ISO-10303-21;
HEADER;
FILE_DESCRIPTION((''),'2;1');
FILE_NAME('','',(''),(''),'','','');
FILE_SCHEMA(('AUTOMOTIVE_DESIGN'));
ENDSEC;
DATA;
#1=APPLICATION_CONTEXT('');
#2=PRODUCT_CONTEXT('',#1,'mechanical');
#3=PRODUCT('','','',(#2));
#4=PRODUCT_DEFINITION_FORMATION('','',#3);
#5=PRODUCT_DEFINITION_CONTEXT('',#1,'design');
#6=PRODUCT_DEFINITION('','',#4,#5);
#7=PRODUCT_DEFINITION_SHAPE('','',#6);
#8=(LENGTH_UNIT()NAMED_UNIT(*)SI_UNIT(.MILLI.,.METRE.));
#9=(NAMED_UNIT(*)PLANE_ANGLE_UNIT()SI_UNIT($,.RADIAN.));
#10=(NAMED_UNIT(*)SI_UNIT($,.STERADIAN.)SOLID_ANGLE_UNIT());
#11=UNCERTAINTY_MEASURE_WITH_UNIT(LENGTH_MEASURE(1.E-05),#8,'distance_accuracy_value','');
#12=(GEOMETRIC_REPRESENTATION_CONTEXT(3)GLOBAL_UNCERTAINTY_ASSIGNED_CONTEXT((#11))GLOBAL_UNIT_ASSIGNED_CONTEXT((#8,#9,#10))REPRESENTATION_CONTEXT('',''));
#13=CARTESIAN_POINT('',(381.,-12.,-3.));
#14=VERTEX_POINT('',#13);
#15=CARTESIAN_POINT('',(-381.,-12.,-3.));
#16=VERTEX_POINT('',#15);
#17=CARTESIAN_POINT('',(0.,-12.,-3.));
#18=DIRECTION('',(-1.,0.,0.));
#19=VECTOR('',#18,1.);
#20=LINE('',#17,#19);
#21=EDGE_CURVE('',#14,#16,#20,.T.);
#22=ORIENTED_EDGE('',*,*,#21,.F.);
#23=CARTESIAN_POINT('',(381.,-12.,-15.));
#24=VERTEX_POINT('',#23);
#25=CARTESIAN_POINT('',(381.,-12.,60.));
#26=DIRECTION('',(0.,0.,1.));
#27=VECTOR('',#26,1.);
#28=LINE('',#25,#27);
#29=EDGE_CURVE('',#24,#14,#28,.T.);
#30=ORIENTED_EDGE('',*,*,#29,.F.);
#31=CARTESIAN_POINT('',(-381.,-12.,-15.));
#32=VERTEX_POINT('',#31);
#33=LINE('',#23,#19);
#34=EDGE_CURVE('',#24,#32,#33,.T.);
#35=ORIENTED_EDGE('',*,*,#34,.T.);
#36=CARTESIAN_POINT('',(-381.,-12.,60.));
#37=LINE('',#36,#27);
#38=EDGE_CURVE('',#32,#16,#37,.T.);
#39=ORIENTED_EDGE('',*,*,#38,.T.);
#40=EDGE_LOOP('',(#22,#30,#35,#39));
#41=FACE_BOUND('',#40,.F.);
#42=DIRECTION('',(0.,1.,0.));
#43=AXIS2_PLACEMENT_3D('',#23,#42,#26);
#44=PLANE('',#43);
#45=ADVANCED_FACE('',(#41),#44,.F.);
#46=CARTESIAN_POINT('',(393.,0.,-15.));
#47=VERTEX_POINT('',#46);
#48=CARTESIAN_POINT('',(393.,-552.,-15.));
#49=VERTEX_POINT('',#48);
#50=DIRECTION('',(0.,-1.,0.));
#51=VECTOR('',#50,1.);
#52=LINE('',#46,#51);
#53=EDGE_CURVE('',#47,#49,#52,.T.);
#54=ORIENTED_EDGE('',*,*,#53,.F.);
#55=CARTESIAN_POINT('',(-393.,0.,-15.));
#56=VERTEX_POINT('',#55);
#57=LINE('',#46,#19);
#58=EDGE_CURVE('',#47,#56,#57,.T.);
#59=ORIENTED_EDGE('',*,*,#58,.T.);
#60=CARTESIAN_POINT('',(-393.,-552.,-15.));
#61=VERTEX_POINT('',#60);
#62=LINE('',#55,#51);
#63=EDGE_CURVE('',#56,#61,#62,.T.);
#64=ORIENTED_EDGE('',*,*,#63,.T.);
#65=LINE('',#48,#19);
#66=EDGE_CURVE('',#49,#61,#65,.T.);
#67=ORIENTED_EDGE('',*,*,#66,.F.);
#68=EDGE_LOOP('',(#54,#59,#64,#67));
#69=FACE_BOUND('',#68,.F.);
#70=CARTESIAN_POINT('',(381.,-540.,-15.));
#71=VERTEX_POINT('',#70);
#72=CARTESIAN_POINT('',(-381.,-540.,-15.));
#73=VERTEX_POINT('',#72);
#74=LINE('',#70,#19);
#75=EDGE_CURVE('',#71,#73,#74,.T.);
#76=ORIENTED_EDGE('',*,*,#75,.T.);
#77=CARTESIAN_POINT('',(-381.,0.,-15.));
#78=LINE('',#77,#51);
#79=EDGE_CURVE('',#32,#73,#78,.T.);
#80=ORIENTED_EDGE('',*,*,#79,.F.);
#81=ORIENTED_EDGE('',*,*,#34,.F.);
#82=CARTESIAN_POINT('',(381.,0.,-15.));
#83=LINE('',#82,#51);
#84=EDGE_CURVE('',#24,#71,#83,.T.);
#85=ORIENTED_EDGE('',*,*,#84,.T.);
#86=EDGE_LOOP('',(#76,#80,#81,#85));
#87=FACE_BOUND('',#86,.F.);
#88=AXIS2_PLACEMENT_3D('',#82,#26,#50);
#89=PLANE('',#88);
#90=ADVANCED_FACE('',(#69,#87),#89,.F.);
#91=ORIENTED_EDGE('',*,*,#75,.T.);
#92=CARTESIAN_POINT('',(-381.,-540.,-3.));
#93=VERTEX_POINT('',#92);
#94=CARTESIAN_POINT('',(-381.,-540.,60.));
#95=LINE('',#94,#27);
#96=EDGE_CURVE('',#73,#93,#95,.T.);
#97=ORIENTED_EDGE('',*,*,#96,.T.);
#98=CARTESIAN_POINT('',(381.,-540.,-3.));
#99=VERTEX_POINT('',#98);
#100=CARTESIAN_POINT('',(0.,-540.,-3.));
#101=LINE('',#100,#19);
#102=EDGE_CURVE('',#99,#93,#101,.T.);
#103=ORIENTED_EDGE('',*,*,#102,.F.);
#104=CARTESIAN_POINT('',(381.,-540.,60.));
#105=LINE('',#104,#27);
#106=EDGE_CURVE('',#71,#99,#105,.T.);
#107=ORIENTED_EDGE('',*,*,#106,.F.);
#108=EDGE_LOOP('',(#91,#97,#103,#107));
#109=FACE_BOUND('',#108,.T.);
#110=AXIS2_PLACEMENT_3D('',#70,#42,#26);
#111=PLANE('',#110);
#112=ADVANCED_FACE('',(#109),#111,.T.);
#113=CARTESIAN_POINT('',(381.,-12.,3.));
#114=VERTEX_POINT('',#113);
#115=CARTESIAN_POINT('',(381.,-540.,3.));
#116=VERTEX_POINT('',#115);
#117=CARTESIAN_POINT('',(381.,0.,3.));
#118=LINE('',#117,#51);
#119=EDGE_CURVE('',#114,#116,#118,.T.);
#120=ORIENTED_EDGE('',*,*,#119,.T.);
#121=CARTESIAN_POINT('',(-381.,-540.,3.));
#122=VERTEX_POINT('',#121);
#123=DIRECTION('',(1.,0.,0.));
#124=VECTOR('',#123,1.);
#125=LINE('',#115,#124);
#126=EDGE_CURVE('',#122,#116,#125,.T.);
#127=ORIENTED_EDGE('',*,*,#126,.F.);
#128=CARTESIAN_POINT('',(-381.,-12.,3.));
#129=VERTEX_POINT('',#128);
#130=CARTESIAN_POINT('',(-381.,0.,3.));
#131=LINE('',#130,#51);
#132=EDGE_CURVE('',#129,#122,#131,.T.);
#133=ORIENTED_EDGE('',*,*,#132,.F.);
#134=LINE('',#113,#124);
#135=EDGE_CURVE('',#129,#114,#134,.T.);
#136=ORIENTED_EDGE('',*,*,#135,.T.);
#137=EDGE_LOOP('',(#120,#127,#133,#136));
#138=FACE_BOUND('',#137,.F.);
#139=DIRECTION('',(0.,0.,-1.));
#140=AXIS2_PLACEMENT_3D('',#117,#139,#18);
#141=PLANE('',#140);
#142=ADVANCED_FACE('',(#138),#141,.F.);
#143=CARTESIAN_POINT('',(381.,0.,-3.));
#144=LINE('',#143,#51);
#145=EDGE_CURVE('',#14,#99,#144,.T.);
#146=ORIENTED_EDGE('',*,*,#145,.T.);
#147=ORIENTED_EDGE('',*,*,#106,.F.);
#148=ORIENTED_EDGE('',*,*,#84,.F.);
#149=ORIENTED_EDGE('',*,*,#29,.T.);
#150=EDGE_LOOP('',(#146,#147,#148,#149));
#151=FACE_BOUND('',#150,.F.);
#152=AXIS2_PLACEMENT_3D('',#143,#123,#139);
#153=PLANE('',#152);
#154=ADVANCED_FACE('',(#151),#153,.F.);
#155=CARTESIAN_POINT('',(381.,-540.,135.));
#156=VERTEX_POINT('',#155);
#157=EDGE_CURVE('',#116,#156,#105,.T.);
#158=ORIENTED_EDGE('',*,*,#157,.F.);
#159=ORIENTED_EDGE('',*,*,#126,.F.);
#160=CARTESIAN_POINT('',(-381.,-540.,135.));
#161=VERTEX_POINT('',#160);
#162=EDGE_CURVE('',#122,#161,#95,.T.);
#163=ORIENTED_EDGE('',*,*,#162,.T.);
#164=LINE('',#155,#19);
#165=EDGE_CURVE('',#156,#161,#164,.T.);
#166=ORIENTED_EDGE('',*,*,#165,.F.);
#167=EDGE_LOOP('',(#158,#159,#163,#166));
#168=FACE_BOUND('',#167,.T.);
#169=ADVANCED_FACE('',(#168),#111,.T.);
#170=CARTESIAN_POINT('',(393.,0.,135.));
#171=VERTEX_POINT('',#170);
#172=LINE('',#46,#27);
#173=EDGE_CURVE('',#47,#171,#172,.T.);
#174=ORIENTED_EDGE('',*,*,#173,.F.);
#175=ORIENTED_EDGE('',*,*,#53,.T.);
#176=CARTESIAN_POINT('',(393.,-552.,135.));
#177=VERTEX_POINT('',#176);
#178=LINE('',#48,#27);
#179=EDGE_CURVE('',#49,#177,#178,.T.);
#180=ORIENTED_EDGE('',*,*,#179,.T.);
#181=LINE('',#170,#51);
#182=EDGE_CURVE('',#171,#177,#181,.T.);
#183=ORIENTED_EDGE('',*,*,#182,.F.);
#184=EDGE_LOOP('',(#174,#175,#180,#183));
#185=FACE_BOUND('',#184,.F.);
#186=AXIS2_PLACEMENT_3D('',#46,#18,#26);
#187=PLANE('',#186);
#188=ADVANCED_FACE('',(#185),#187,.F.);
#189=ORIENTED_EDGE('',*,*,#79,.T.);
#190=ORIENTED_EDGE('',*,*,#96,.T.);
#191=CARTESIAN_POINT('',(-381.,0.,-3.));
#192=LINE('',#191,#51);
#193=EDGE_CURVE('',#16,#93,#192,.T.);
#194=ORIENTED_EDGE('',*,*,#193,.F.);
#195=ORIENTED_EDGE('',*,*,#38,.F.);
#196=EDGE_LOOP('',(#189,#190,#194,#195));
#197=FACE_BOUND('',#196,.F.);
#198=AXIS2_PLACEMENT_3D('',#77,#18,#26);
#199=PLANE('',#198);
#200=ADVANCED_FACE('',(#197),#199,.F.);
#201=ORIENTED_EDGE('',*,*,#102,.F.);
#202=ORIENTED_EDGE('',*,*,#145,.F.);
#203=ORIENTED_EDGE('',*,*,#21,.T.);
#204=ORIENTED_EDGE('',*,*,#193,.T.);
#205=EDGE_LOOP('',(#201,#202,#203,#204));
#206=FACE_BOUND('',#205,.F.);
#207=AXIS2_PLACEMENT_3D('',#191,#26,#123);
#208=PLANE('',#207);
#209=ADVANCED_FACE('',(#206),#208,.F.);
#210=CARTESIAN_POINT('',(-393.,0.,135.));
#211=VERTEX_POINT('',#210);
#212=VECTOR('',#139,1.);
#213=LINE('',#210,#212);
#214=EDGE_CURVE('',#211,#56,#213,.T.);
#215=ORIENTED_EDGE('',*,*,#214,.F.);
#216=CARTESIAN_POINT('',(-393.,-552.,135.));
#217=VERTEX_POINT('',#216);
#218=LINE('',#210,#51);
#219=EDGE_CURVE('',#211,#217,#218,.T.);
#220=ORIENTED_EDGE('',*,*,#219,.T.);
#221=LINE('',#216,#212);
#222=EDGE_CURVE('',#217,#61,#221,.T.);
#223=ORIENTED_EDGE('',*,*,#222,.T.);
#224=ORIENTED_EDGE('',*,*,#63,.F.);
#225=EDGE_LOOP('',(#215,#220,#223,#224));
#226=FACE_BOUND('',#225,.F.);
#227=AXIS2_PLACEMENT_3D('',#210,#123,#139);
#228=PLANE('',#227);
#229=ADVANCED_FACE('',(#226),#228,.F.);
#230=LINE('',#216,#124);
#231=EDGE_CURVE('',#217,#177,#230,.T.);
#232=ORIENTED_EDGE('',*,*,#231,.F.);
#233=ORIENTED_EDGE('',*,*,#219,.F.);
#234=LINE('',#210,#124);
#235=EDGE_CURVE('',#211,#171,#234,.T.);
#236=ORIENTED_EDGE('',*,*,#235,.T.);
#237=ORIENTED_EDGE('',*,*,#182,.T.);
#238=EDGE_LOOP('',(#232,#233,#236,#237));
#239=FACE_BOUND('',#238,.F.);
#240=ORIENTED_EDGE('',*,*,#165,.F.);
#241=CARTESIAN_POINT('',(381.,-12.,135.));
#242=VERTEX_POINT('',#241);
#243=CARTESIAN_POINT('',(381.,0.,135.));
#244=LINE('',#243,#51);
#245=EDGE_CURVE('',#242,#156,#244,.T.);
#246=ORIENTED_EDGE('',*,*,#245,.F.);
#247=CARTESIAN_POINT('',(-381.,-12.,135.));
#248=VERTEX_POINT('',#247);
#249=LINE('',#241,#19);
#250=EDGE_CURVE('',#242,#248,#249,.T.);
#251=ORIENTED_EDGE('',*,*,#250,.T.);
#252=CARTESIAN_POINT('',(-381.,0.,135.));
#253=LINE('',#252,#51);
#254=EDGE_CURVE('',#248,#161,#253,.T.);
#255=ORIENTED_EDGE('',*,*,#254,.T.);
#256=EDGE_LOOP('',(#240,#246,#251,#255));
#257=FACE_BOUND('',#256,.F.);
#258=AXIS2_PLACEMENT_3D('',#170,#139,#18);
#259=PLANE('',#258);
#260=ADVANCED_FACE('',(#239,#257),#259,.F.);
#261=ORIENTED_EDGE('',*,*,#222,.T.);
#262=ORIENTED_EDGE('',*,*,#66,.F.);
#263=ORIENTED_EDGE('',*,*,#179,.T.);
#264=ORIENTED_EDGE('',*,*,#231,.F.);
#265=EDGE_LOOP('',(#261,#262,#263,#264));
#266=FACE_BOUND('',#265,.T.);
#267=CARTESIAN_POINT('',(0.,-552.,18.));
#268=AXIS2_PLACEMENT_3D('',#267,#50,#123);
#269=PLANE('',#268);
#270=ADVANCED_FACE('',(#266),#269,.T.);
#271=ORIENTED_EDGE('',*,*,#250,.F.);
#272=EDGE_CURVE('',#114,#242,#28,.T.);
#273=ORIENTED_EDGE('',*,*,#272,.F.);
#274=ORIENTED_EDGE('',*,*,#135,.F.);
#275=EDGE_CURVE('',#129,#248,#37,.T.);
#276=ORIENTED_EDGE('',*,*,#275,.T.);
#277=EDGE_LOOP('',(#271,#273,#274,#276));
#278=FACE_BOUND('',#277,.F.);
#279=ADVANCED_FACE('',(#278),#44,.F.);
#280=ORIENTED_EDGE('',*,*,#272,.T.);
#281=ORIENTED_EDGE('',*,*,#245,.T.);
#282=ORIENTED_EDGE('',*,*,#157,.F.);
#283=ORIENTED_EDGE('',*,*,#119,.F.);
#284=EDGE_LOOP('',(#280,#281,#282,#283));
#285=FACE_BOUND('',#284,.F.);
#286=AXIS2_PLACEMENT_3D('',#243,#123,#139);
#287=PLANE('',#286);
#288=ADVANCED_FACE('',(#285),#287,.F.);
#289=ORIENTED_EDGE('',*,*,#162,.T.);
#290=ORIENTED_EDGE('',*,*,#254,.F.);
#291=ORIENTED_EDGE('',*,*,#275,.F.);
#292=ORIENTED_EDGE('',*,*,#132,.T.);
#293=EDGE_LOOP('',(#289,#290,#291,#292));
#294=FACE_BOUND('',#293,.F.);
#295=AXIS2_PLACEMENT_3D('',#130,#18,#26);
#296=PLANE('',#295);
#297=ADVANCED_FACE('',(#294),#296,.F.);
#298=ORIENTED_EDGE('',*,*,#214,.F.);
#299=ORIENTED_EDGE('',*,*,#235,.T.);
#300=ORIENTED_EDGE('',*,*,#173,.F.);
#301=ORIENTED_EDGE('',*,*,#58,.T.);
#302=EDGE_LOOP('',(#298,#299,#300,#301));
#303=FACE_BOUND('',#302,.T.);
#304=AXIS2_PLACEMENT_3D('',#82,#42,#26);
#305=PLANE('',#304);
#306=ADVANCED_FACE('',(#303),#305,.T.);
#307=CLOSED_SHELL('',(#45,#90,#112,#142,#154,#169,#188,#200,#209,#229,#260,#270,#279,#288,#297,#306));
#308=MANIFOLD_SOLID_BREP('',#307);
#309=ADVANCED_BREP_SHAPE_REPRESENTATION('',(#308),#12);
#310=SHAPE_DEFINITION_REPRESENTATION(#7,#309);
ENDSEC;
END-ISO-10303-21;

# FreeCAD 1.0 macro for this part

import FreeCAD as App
import Part
import Sketcher

V = App.Vector

doc = App.newDocument("Part")
body = doc.addObject("PartDesign::Body", "Body")

sketch1 = doc.addObject("Sketcher::SketchObject", "Sketch")
body.addObject(sketch1)
sketch1.AttachmentSupport = (doc.XZ_Plane, [""])
sketch1.MapMode = "FlatFace"
sketch1.addGeometry([
    Part.LineSegment(V(381, 135, 0), V(381, 3, 0)),
    Part.LineSegment(V(381, 3, 0), V(-381, 3, 0)),
    Part.LineSegment(V(-381, 3, 0), V(-381, 135, 0)),
    Part.LineSegment(V(-381, 135, 0), V(-393, 135, 0)),
    Part.LineSegment(V(-393, 135, 0), V(-393, -15, 0)),
    Part.LineSegment(V(-393, -15, 0), V(-381, -15, 0)),
    Part.LineSegment(V(-381, -15, 0), V(-381, -3, 0)),
    Part.LineSegment(V(-381, -3, 0), V(381, -3, 0)),
    Part.LineSegment(V(381, -3, 0), V(381, -15, 0)),
    Part.LineSegment(V(381, -15, 0), V(393, -15, 0)),
    Part.LineSegment(V(393, -15, 0), V(393, 135, 0)),
    Part.LineSegment(V(393, 135, 0), V(381, 135, 0)),
], False)
sketch1.addConstraint([
    Sketcher.Constraint("Coincident", 0, 2, 1, 1),
    Sketcher.Constraint("Coincident", 1, 2, 2, 1),
    Sketcher.Constraint("Coincident", 2, 2, 3, 1),
    Sketcher.Constraint("Coincident", 3, 2, 4, 1),
    Sketcher.Constraint("Coincident", 4, 2, 5, 1),
    Sketcher.Constraint("Coincident", 5, 2, 6, 1),
    Sketcher.Constraint("Coincident", 6, 2, 7, 1),
    Sketcher.Constraint("Coincident", 7, 2, 8, 1),
    Sketcher.Constraint("Coincident", 8, 2, 9, 1),
    Sketcher.Constraint("Coincident", 9, 2, 10, 1),
    Sketcher.Constraint("Coincident", 10, 2, 11, 1),
    Sketcher.Constraint("Coincident", 11, 2, 0, 1),
    Sketcher.Constraint("Vertical", 0),
    Sketcher.Constraint("Horizontal", 1),
    Sketcher.Constraint("Vertical", 2),
    Sketcher.Constraint("Horizontal", 3),
    Sketcher.Constraint("Vertical", 4),
    Sketcher.Constraint("Horizontal", 5),
    Sketcher.Constraint("Vertical", 6),
    Sketcher.Constraint("Horizontal", 7),
    Sketcher.Constraint("Vertical", 8),
    Sketcher.Constraint("Horizontal", 9),
    Sketcher.Constraint("Vertical", 10),
    Sketcher.Constraint("Horizontal", 11),
    Sketcher.Constraint("Symmetric", 0, 2, 6, 2, -1, 1),
    Sketcher.Constraint("Symmetric", 5, 2, 8, 2, -2),
    Sketcher.Constraint("Symmetric", 3, 2, 10, 2, -2),
    Sketcher.Constraint("Vertical", 2, 2, 5, 2),
    Sketcher.Constraint("Equal", 11, 6),
    Sketcher.Constraint("DistanceX", 1, 2, 1, 1, 762.0),
    Sketcher.Constraint("DistanceX", 3, 2, 3, 1, 12.0),
    Sketcher.Constraint("DistanceY", 0, 2, 0, 1, 132.0),
    Sketcher.Constraint("DistanceY", 4, 2, 4, 1, 150.0),
])
pad1 = doc.addObject("PartDesign::Pad", "Pad")
body.addObject(pad1)
pad1.Profile = sketch1
pad1.Length = 552

sketch2 = doc.addObject("Sketcher::SketchObject", "Sketch001")
body.addObject(sketch2)
sketch2.AttachmentSupport = (doc.YZ_Plane, [""])
sketch2.MapMode = "FlatFace"
sketch2.AttachmentOffset = App.Placement(V(0, 0, 381), App.Rotation())
sketch2.addGeometry([
    Part.LineSegment(V(0, 135, 0), V(0, -15, 0)),
    Part.LineSegment(V(0, -15, 0), V(-12, -15, 0)),
    Part.LineSegment(V(-12, -15, 0), V(-12, 135, 0)),
    Part.LineSegment(V(-12, 135, 0), V(0, 135, 0)),
    Part.LineSegment(V(-540, 135, 0), V(-540, -15, 0)),
    Part.LineSegment(V(-540, -15, 0), V(-552, -15, 0)),
    Part.LineSegment(V(-552, -15, 0), V(-552, 135, 0)),
    Part.LineSegment(V(-552, 135, 0), V(-540, 135, 0)),
], False)
sketch2.addConstraint([
    Sketcher.Constraint("Coincident", 0, 2, 1, 1),
    Sketcher.Constraint("Coincident", 1, 2, 2, 1),
    Sketcher.Constraint("Coincident", 2, 2, 3, 1),
    Sketcher.Constraint("Coincident", 3, 2, 0, 1),
    Sketcher.Constraint("Coincident", 4, 2, 5, 1),
    Sketcher.Constraint("Coincident", 5, 2, 6, 1),
    Sketcher.Constraint("Coincident", 6, 2, 7, 1),
    Sketcher.Constraint("Coincident", 7, 2, 4, 1),
    Sketcher.Constraint("Vertical", 0),
    Sketcher.Constraint("Horizontal", 1),
    Sketcher.Constraint("Vertical", 2),
    Sketcher.Constraint("Horizontal", 3),
    Sketcher.Constraint("Vertical", 4),
    Sketcher.Constraint("Horizontal", 5),
    Sketcher.Constraint("Vertical", 6),
    Sketcher.Constraint("Horizontal", 7),
    Sketcher.Constraint("PointOnObject", 0, 2, -2),
    Sketcher.Constraint("Horizontal", 1, 2, 4, 2),
    Sketcher.Constraint("Horizontal", 3, 2, 6, 2),
    Sketcher.Constraint("Equal", 3, 5),
    Sketcher.Constraint("DistanceX", 1, 2, 1, 1, 12.0),
    Sketcher.Constraint("DistanceY", 0, 2, 0, 1, 150.0),
    Sketcher.Constraint("DistanceY", 0, 2, -1, 1, 15.0),
    Sketcher.Constraint("DistanceX", 4, 2, -1, 1, 540.0),
])
pad2 = doc.addObject("PartDesign::Pad", "Pad001")
body.addObject(pad2)
pad2.Profile = sketch2
pad2.Type = "UpToLast"
pad2.Reversed = True

doc.recompute()
